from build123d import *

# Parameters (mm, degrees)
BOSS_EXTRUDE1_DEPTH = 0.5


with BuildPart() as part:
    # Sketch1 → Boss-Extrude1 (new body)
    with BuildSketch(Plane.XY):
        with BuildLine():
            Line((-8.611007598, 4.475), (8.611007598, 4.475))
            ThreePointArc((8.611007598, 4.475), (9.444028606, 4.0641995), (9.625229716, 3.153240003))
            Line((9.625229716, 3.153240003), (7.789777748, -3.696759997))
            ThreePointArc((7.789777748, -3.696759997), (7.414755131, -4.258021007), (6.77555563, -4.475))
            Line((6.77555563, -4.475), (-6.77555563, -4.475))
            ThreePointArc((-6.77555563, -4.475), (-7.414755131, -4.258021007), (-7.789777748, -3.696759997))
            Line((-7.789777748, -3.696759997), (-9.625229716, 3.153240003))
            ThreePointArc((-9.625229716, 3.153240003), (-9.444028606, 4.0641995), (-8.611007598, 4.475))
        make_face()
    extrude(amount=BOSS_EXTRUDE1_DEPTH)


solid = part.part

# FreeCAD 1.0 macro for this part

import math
import FreeCAD as App
import Part
import Sketcher
Q = App.Units.Quantity

doc = App.newDocument("Part")
body = doc.addObject("PartDesign::Body", "Body")

# Sketch on XY plane
sketch1 = body.newObject("Sketcher::SketchObject", "Sketch")
sketch1.AttachmentSupport = (doc.getObject("XY_Plane"), [""])
sketch1.MapMode = "FlatFace"
sketch1.addGeometry(Part.LineSegment(App.Vector(8.6, 4.5, 0), App.Vector(-8.6, 4.5, 0)), False)
sketch1.addGeometry(Part.ArcOfCircle(Part.Circle(App.Vector(-8.6, 3.4, 0), App.Vector(0, 0, 1), 1.1), math.radians(90), math.radians(195)), False)
sketch1.addGeometry(Part.LineSegment(App.Vector(-9.6, 3.2, 0), App.Vector(-7.8, -3.7, 0)), False)
sketch1.addGeometry(Part.ArcOfCircle(Part.Circle(App.Vector(-6.8, -3.4, 0), App.Vector(0, 0, 1), 1.1), math.radians(-165), math.radians(-90)), False)
sketch1.addGeometry(Part.LineSegment(App.Vector(-6.8, -4.5, 0), App.Vector(6.8, -4.5, 0)), False)
sketch1.addGeometry(Part.ArcOfCircle(Part.Circle(App.Vector(6.8, -3.4, 0), App.Vector(0, 0, 1), 1.1), math.radians(-90), math.radians(-15)), False)
sketch1.addGeometry(Part.LineSegment(App.Vector(7.8, -3.7, 0), App.Vector(9.6, 3.2, 0)), False)
sketch1.addGeometry(Part.ArcOfCircle(Part.Circle(App.Vector(8.6, 3.4, 0), App.Vector(0, 0, 1), 1.1), math.radians(-15), math.radians(90)), False)
sketch1.addConstraint(Sketcher.Constraint("Tangent", 0, 2, 1, 1))
sketch1.addConstraint(Sketcher.Constraint("Tangent", 1, 2, 2, 1))
sketch1.addConstraint(Sketcher.Constraint("Tangent", 2, 2, 3, 1))
sketch1.addConstraint(Sketcher.Constraint("Tangent", 3, 2, 4, 1))
sketch1.addConstraint(Sketcher.Constraint("Tangent", 4, 2, 5, 1))
sketch1.addConstraint(Sketcher.Constraint("Tangent", 5, 2, 6, 1))
sketch1.addConstraint(Sketcher.Constraint("Tangent", 6, 2, 7, 1))
sketch1.addConstraint(Sketcher.Constraint("Tangent", 7, 2, 0, 1))
sketch1.addConstraint(Sketcher.Constraint("Horizontal", 0))
sketch1.addConstraint(Sketcher.Constraint("Horizontal", 4))
sketch1.addConstraint(Sketcher.Constraint("Equal", 1, 3))
sketch1.addConstraint(Sketcher.Constraint("Equal", 3, 5))
sketch1.addConstraint(Sketcher.Constraint("Equal", 5, 7))
sketch1.addConstraint(Sketcher.Constraint("Symmetric", 2, 2, 5, 2, -2))
sketch1.addConstraint(Sketcher.Constraint("Angle", 2, Q("-75 deg")))
sketch1.addConstraint(Sketcher.Constraint("Radius", 1, Q("1.05 mm")))
sketch1.addConstraint(Sketcher.Constraint("DistanceY", 3, 3, 0, 2, Q("7.9 mm")))
sketch1.addConstraint(Sketcher.Constraint("DistanceY", -1, 1, 1, 3, Q("3.425 mm")))
sketch1.addConstraint(Sketcher.Constraint("DistanceX", 4, 1, 4, 2, Q("13.551111 mm")))
pad1 = body.newObject("PartDesign::Pad", "Pad")
pad1.Profile = sketch1
pad1.Length = 0.5

doc.recompute()
